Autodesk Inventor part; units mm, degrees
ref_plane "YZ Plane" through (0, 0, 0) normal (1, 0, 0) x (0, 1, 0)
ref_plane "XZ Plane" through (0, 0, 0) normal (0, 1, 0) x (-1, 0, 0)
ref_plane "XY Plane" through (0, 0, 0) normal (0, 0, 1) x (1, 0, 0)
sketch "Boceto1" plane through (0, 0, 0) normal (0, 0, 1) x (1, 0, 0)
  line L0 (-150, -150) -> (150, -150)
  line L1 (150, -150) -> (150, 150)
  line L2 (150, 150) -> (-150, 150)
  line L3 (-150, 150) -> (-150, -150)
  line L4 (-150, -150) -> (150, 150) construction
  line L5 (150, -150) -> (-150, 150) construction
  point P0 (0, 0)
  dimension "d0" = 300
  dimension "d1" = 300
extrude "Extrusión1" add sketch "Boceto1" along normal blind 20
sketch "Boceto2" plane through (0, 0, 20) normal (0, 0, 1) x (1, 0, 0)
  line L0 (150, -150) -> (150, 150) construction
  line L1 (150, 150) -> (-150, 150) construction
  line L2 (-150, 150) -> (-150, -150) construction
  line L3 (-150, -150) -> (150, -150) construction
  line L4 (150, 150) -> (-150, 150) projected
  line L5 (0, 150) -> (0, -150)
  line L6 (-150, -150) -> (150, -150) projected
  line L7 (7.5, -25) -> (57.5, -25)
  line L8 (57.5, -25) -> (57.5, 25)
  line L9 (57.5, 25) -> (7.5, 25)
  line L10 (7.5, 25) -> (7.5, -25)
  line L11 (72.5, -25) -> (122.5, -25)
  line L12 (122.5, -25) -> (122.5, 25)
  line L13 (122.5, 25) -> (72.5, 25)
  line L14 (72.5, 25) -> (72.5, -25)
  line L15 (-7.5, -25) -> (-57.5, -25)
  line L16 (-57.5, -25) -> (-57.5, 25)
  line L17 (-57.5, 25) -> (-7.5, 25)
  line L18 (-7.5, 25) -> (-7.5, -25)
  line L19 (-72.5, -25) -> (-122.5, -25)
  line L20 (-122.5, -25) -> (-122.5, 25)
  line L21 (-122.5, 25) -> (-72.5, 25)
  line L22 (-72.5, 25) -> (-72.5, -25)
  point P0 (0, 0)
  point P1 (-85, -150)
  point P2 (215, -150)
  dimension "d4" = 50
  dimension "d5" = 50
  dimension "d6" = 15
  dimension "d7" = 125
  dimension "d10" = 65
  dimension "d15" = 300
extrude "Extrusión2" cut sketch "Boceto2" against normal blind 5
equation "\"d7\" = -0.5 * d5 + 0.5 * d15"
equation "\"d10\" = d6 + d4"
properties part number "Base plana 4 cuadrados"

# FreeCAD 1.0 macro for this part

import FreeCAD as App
import Part
import Sketcher
Q = App.Units.Quantity


def add_polygon(sketch, points):
    """Adds a closed chain of lines whose ends are joined by coincident constraints."""
    first, n = sketch.GeometryCount, len(points)
    for a, b in zip(points, points[1:] + points[:1]):
        sketch.addGeometry(Part.LineSegment(App.Vector(*a, 0), App.Vector(*b, 0)), False)
    for i in range(n):
        sketch.addConstraint(Sketcher.Constraint("Coincident", first + i, 2, first + (i + 1) % n, 1))

doc = App.newDocument("Part")
params = doc.addObject("Spreadsheet::Sheet", "Params")
for row, (alias, value) in enumerate([
    ("sketch1_width", "300 mm"),
    ("pad1_length", "20 mm"),
    ("sketch2_width", "50 mm"),
    ("pocket1_length", "5 mm"),
], start=1):
    params.set(f"A{row}", alias)
    params.set(f"B{row}", "=" + value)
    params.setAlias(f"B{row}", alias)

body = doc.addObject("PartDesign::Body", "Body")

# Sketch on XY plane
sketch1 = body.newObject("Sketcher::SketchObject", "Sketch")
sketch1.AttachmentSupport = (doc.getObject("XY_Plane"), [""])
sketch1.MapMode = "FlatFace"
add_polygon(sketch1, [(-150, 150), (-150, -150), (150, -150), (150, 150)])  # lines 0-3
sketch1.addConstraint([
    Sketcher.Constraint("Vertical", 0),
    Sketcher.Constraint("Horizontal", 1),
    Sketcher.Constraint("Vertical", 2),
    Sketcher.Constraint("Horizontal", 3),
    Sketcher.Constraint("Symmetric", 0, 2, 2, 2, -1, 1),
    Sketcher.Constraint("Equal", 3, 0),
    Sketcher.Constraint("DistanceX", 1, 1, 1, 2, Q("300 mm")),
])
sketch1.setExpression("Constraints[10]", "Params.sketch1_width")
pad1 = body.newObject("PartDesign::Pad", "Pad")
pad1.Profile = sketch1
pad1.setExpression("Length", "Params.pad1_length")

# Sketch on XY plane
sketch2 = body.newObject("Sketcher::SketchObject", "Sketch001")
sketch2.AttachmentSupport = (doc.getObject("XY_Plane"), [""])
sketch2.MapMode = "FlatFace"
sketch2.AttachmentOffset = App.Placement(App.Vector(0, 0, 20), App.Rotation())
add_polygon(sketch2, [(8, 25), (8, -25), (58, -25), (58, 25)])  # lines 0-3
add_polygon(sketch2, [(72, 25), (72, -25), (122, -25), (122, 25)])  # lines 4-7
add_polygon(sketch2, [(-58, -25), (-8, -25), (-8, 25), (-58, 25)])  # lines 8-11
add_polygon(sketch2, [(-122, -25), (-72, -25), (-72, 25), (-122, 25)])  # lines 12-15
sketch2.addConstraint([
    Sketcher.Constraint("Vertical", 0),
    Sketcher.Constraint("Horizontal", 1),
    Sketcher.Constraint("Vertical", 2),
    Sketcher.Constraint("Horizontal", 3),
    Sketcher.Constraint("Vertical", 4),
    Sketcher.Constraint("Horizontal", 5),
    Sketcher.Constraint("Vertical", 6),
    Sketcher.Constraint("Horizontal", 7),
    Sketcher.Constraint("Horizontal", 8),
    Sketcher.Constraint("Vertical", 9),
    Sketcher.Constraint("Horizontal", 10),
    Sketcher.Constraint("Vertical", 11),
    Sketcher.Constraint("Horizontal", 12),
    Sketcher.Constraint("Vertical", 13),
    Sketcher.Constraint("Horizontal", 14),
    Sketcher.Constraint("Vertical", 15),
    Sketcher.Constraint("Symmetric", 3, 2, 8, 2, -1, 1),
    Sketcher.Constraint("Symmetric", 1, 2, 10, 2, -1, 1),
    Sketcher.Constraint("Symmetric", 7, 2, 12, 2, -1, 1),
    Sketcher.Constraint("Symmetric", 5, 2, 14, 2, -1, 1),
    Sketcher.Constraint("Horizontal", 1, 2, 4, 2),
    Sketcher.Constraint("Horizontal", 3, 2, 6, 2),
    Sketcher.Constraint("Horizontal", 5, 2, 8, 2),
    Sketcher.Constraint("Equal", 3, 5),
    Sketcher.Constraint("Equal", 14, 0),
    Sketcher.Constraint("DistanceX", 1, 1, 1, 2, Q("50 mm")),
    Sketcher.Constraint("DistanceX", 1, 2, 4, 2, Q("15 mm")),
    Sketcher.Constraint("DistanceX", 8, 2, 0, 2, Q("15 mm")),
])
sketch2.setExpression("Constraints[41]", "Params.sketch2_width")
pocket1 = body.newObject("PartDesign::Pocket", "Pocket")
pocket1.Profile = sketch2
pocket1.setExpression("Length", "Params.pocket1_length")

doc.recompute()
